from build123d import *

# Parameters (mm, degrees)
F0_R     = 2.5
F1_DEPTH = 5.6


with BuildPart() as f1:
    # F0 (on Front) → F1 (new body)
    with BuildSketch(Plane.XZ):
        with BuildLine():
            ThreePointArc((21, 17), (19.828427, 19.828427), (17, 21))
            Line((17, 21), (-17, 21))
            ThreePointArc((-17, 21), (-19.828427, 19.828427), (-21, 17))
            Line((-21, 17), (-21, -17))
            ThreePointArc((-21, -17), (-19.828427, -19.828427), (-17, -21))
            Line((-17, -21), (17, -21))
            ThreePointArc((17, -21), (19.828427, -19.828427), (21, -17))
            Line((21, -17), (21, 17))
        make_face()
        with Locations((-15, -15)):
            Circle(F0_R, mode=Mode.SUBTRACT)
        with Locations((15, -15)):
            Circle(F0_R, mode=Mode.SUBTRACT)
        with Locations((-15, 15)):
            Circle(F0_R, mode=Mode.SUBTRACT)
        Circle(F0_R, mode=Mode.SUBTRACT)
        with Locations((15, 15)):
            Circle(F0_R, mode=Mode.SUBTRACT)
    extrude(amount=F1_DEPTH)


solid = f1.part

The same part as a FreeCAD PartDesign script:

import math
import FreeCAD as App
import Part
import Sketcher
from FreeCAD import Vector
Q = App.Units.Quantity

doc = App.newDocument("Part")
params = doc.addObject("Spreadsheet::Sheet", "Params")
for row, (alias, value) in enumerate([
    ("sketch1_diameter", "5 mm"),
    ("sketch1_radius", "4 mm"),
    ("sketch1_width", "34 mm"),
    ("pad1_length", "5.6 mm"),
], start=1):
    params.set(f"A{row}", alias)
    params.set(f"B{row}", "=" + value)
    params.setAlias(f"B{row}", alias)

body = doc.addObject("PartDesign::Body", "Body")

sketch1 = body.newObject("Sketcher::SketchObject", "Sketch")
sketch1.AttachmentSupport = (doc.getObject("XZ_Plane"), [""])
sketch1.MapMode = "FlatFace"
sketch1.addGeometry([
    Part.ArcOfCircle(Part.Circle(Vector(17, 17, 0), Vector(0, 0, 1), 4), math.radians(0), math.radians(90)),
    Part.LineSegment(Vector(17, 21, 0), Vector(-17, 21, 0)),
    Part.ArcOfCircle(Part.Circle(Vector(-17, 17, 0), Vector(0, 0, 1), 4), math.radians(90), math.radians(180)),
    Part.LineSegment(Vector(-21, 17, 0), Vector(-21, -17, 0)),
    Part.ArcOfCircle(Part.Circle(Vector(-17, -17, 0), Vector(0, 0, 1), 4), math.radians(-180), math.radians(-90)),
    Part.LineSegment(Vector(-17, -21, 0), Vector(17, -21, 0)),
    Part.ArcOfCircle(Part.Circle(Vector(17, -17, 0), Vector(0, 0, 1), 4), math.radians(-90), math.radians(0)),
    Part.LineSegment(Vector(21, -17, 0), Vector(21, 17, 0)),
    Part.Circle(Vector(-15, -15, 0), Vector(0, 0, 1), 2.5),
    Part.Circle(Vector(15, -15, 0), Vector(0, 0, 1), 2.5),
    Part.Circle(Vector(-15, 15, 0), Vector(0, 0, 1), 2.5),
    Part.Circle(Vector(0, 0, 0), Vector(0, 0, 1), 2.5),
    Part.Circle(Vector(15, 15, 0), Vector(0, 0, 1), 2.5),
], False)
sketch1.addConstraint([
    Sketcher.Constraint("Tangent", 0, 2, 1, 1),
    Sketcher.Constraint("Tangent", 1, 2, 2, 1),
    Sketcher.Constraint("Tangent", 2, 2, 3, 1),
    Sketcher.Constraint("Tangent", 3, 2, 4, 1),
    Sketcher.Constraint("Tangent", 4, 2, 5, 1),
    Sketcher.Constraint("Tangent", 5, 2, 6, 1),
    Sketcher.Constraint("Tangent", 6, 2, 7, 1),
    Sketcher.Constraint("Tangent", 7, 2, 0, 1),
    Sketcher.Constraint("Horizontal", 1),
    Sketcher.Constraint("Vertical", 3),
    Sketcher.Constraint("Horizontal", 5),
    Sketcher.Constraint("Vertical", 7),
    Sketcher.Constraint("Coincident", 11, 3, -1, 1),
    Sketcher.Constraint("Equal", 0, 2),
    Sketcher.Constraint("Equal", 2, 4),
    Sketcher.Constraint("Equal", 4, 6),
    Sketcher.Constraint("Equal", 8, 9),
    Sketcher.Constraint("Equal", 9, 10),
    Sketcher.Constraint("Equal", 10, 11),
    Sketcher.Constraint("Equal", 11, 12),
    Sketcher.Constraint("Symmetric", 0, 3, 4, 3, -1, 1),
    Sketcher.Constraint("Symmetric", 9, 3, 10, 3, -1, 1),
    Sketcher.Constraint("Symmetric", 8, 3, 12, 3, -1, 1),
    Sketcher.Constraint("Symmetric", 8, 3, 9, 3, -2),
    Sketcher.Constraint("Equal", 5, 3),
    Sketcher.Constraint("Diameter", 8, Q("5 mm")),
    Sketcher.Constraint("Radius", 0, Q("4 mm")),
    Sketcher.Constraint("DistanceX", 1, 2, 1, 1, Q("34 mm")),
    Sketcher.Constraint("DistanceX", 8, 3, -1, 1, Q("15 mm")),
    Sketcher.Constraint("DistanceY", 8, 3, -1, 1, Q("15 mm")),
])
sketch1.setExpression("Constraints[25]", "Params.sketch1_diameter")
sketch1.setExpression("Constraints[26]", "Params.sketch1_radius")
sketch1.setExpression("Constraints[27]", "Params.sketch1_width")
pad1 = body.newObject("PartDesign::Pad", "Pad")
pad1.Profile = sketch1
pad1.setExpression("Length", "Params.pad1_length")

doc.recompute()
